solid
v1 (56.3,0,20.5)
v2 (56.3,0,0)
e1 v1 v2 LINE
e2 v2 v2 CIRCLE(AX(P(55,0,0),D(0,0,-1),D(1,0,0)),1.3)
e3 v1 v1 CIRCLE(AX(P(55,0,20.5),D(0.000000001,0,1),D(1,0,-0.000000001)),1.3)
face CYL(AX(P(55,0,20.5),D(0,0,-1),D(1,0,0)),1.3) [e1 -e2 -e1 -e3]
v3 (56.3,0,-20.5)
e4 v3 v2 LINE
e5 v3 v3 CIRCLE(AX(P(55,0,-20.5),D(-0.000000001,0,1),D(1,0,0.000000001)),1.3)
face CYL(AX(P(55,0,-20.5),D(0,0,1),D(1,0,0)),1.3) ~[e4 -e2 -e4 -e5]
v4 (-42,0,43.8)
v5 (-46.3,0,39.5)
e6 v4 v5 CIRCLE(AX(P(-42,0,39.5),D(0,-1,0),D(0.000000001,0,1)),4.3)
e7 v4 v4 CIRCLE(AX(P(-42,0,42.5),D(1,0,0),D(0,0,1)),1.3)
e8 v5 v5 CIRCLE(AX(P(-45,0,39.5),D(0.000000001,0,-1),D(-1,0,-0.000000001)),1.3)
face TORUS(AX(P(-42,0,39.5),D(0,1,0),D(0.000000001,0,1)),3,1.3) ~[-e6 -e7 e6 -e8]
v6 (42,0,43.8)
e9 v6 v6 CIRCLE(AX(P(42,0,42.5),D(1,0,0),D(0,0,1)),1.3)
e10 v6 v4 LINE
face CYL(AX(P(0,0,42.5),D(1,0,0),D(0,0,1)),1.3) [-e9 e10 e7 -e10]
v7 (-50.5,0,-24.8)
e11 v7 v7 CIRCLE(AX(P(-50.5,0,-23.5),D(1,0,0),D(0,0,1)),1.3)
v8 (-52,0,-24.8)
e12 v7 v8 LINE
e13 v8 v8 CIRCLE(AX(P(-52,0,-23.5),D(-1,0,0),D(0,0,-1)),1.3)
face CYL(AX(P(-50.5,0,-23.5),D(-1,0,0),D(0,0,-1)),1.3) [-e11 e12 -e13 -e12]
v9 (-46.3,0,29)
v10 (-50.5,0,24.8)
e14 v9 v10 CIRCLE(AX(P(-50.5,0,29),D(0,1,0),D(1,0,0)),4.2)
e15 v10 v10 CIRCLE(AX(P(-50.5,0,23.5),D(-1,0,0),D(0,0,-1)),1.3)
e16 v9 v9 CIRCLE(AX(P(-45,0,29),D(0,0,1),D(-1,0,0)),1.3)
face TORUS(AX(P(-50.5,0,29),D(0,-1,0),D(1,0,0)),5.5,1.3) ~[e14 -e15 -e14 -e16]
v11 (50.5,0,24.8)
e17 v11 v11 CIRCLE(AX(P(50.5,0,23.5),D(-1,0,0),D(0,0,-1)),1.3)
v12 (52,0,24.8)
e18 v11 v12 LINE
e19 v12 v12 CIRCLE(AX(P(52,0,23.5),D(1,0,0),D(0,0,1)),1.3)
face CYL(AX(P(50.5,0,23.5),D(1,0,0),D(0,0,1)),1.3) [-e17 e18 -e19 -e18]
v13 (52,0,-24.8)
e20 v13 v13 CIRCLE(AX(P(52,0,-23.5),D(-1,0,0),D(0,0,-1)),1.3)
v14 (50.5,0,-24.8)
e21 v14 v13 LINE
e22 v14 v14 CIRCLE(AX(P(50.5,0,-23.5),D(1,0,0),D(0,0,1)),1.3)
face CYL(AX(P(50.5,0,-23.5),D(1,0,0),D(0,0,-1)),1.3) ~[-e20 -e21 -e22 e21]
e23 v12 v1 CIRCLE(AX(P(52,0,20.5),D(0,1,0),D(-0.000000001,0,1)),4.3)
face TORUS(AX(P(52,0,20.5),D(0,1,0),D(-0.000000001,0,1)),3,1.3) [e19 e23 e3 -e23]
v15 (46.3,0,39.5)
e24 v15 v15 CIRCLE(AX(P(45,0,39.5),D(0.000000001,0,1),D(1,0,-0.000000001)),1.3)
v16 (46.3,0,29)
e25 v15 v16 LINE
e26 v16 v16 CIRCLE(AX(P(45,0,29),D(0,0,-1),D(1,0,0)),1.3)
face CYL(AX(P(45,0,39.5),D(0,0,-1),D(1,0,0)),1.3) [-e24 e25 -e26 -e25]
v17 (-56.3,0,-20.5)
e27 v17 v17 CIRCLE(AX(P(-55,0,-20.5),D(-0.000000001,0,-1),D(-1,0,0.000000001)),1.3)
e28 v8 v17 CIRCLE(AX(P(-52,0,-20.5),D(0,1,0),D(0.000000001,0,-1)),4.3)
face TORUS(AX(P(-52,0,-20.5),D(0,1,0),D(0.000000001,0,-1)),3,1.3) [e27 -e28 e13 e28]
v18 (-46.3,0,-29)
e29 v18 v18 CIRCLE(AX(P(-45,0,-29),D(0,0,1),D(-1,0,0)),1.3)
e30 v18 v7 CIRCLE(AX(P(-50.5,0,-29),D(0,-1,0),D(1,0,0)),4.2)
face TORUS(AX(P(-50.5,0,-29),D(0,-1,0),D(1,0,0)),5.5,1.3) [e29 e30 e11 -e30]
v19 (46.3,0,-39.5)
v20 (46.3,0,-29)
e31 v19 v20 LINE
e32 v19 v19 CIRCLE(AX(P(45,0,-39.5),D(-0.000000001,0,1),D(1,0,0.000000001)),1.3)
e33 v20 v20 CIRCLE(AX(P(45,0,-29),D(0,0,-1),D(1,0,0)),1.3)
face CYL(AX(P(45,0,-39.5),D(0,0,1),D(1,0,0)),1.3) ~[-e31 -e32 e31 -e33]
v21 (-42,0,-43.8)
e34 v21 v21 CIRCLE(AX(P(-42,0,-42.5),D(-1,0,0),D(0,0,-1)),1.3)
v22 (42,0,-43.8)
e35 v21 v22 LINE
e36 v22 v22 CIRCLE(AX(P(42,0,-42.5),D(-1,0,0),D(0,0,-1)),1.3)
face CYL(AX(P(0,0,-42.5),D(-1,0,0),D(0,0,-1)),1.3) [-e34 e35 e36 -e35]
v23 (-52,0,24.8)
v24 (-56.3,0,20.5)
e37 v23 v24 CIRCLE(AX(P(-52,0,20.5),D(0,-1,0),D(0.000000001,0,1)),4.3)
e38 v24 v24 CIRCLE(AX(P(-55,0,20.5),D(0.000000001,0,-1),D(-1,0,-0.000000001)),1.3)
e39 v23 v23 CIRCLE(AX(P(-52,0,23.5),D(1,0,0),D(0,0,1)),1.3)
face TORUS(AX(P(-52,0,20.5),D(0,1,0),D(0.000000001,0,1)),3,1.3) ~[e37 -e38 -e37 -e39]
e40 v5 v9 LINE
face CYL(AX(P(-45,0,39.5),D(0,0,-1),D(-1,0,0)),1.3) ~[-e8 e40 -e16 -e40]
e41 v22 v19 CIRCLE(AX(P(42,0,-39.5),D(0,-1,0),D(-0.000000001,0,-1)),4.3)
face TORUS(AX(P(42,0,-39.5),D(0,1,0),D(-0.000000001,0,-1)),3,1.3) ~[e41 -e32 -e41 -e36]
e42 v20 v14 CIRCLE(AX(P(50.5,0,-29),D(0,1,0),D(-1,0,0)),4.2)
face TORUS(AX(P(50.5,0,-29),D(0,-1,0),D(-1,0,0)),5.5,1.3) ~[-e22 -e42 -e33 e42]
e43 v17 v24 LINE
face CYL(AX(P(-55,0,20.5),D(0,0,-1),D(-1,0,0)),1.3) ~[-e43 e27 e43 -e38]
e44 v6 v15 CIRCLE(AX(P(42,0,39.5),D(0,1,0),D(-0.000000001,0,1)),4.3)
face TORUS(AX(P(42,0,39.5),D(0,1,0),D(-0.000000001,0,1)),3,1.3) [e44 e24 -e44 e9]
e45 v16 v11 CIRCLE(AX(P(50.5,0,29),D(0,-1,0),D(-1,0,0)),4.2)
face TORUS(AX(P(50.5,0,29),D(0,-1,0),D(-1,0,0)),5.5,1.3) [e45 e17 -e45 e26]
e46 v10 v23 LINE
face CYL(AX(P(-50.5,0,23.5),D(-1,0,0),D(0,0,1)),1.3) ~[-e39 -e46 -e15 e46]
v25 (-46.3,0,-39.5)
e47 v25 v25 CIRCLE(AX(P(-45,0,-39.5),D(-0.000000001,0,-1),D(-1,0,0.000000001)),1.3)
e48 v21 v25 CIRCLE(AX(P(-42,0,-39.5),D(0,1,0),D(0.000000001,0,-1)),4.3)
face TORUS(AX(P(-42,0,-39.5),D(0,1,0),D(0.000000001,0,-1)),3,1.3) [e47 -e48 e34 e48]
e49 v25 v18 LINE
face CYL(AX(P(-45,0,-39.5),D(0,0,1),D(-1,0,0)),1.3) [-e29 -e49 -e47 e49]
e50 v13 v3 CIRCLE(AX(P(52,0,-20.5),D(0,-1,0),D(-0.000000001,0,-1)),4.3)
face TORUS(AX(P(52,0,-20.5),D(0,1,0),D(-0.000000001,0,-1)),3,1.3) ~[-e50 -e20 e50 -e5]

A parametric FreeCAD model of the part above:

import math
import FreeCAD as App
import Part
import Sketcher

V = App.Vector
Q = App.Units.Quantity

doc = App.newDocument("Part")
body = doc.addObject("PartDesign::Body", "Body")

sketch1 = body.newObject("Sketcher::SketchObject", "Sketch")
sketch1.AttachmentSupport = (doc.getObject("XY_Plane"), [""])
sketch1.MapMode = "FlatFace"
sketch1.addGeometry(Part.Circle(V(-55, 0, 0), V(0, 0, 1), 1.3), False)
sketch1.addConstraint([
    Sketcher.Constraint("PointOnObject", 0, 3, -1),
    Sketcher.Constraint("Diameter", 0, Q("2.6 mm")),
    Sketcher.Constraint("DistanceX", 0, 3, -1, 1, Q("55 mm")),
])

sketch2 = body.newObject("Sketcher::SketchObject", "Sketch001")
sketch2.AttachmentSupport = (doc.getObject("XZ_Plane"), [""])
sketch2.MapMode = "FlatFace"
sketch2.addGeometry([
    Part.LineSegment(V(0, -42.5, 0), V(-42, -42.5, 0)),
    Part.ArcOfCircle(Part.Circle(V(-42, -39.5, 0), V(0, 0, 1), 3), math.radians(180), math.radians(270)),
    Part.LineSegment(V(-45, -39.5, 0), V(-45, -29, 0)),
    Part.ArcOfCircle(Part.Circle(V(-50.5, -29, 0), V(0, 0, 1), 5.5), math.radians(0), math.radians(90)),
    Part.LineSegment(V(-50.5, -23.5, 0), V(-52, -23.5, 0)),
    Part.ArcOfCircle(Part.Circle(V(-52, -20.5, 0), V(0, 0, 1), 3), math.radians(180), math.radians(270)),
    Part.LineSegment(V(-55, -20.5, 0), V(-55, 0, 0)),
], False)
sketch2.addConstraint([
    Sketcher.Constraint("Tangent", 0, 2, 1, 2),
    Sketcher.Constraint("Tangent", 1, 1, 2, 1),
    Sketcher.Constraint("Tangent", 2, 2, 3, 1),
    Sketcher.Constraint("Tangent", 3, 2, 4, 1),
    Sketcher.Constraint("Tangent", 4, 2, 5, 2),
    Sketcher.Constraint("Tangent", 5, 1, 6, 1),
    Sketcher.Constraint("Horizontal", 0),
    Sketcher.Constraint("Vertical", 2),
    Sketcher.Constraint("Horizontal", 4),
    Sketcher.Constraint("Vertical", 6),
    Sketcher.Constraint("Equal", 1, 5),
    Sketcher.Constraint("PointOnObject", 0, 1, -2),
    Sketcher.Constraint("PointOnObject", 6, 2, -1),
    Sketcher.Constraint("Radius", 1, Q("3 mm")),
    Sketcher.Constraint("Radius", 3, Q("5.5 mm")),
    Sketcher.Constraint("DistanceX", 0, 2, 0, 1, Q("42 mm")),
    Sketcher.Constraint("DistanceX", 4, 2, 4, 1, Q("1.5 mm")),
    Sketcher.Constraint("DistanceY", 2, 1, 2, 2, Q("10.5 mm")),
    Sketcher.Constraint("DistanceY", 6, 1, 6, 2, Q("20.5 mm")),
])
doc.recompute()

additivepipe = body.newObject("PartDesign::AdditivePipe", "AdditivePipe")
additivepipe.Profile = sketch1
additivepipe.Spine = (sketch2, ["Edge1", "Edge2", "Edge3", "Edge4", "Edge5", "Edge6", "Edge7"])
doc.recompute()

mirrored = body.newObject("PartDesign::Mirrored", "Mirrored")
mirrored.Originals = [additivepipe]
mirrored.MirrorPlane = (doc.getObject("YZ_Plane"), [""])
body.Tip = mirrored
doc.recompute()

mirrored2 = body.newObject("PartDesign::Mirrored", "Mirrored001")
mirrored2.Originals = [additivepipe]
mirrored2.MirrorPlane = (doc.getObject("XY_Plane"), [""])
body.Tip = mirrored2

sketch3 = body.newObject("Sketcher::SketchObject", "Sketch002")
sketch3.AttachmentSupport = (doc.getObject("XY_Plane"), [""])
sketch3.MapMode = "FlatFace"
sketch3.addGeometry(Part.Circle(V(55, 0, 0), V(0, 0, 1), 1.3), False)
sketch3.addConstraint([
    Sketcher.Constraint("PointOnObject", 0, 3, -1),
    Sketcher.Constraint("Diameter", 0, Q("2.6 mm")),
    Sketcher.Constraint("DistanceX", -1, 1, 0, 3, Q("55 mm")),
])

sketch4 = body.newObject("Sketcher::SketchObject", "Sketch003")
sketch4.AttachmentSupport = (doc.getObject("XZ_Plane"), [""])
sketch4.MapMode = "FlatFace"
sketch4.addGeometry([
    Part.LineSegment(V(0, 42.5, 0), V(42, 42.5, 0)),
    Part.ArcOfCircle(Part.Circle(V(42, 39.5, 0), V(0, 0, 1), 3), math.radians(0), math.radians(90)),
    Part.LineSegment(V(45, 39.5, 0), V(45, 29, 0)),
    Part.ArcOfCircle(Part.Circle(V(50.5, 29, 0), V(0, 0, 1), 5.5), math.radians(180), math.radians(270)),
    Part.LineSegment(V(50.5, 23.5, 0), V(52, 23.5, 0)),
    Part.ArcOfCircle(Part.Circle(V(52, 20.5, 0), V(0, 0, 1), 3), math.radians(0), math.radians(90)),
    Part.LineSegment(V(55, 20.5, 0), V(55, 0, 0)),
], False)
sketch4.addConstraint([
    Sketcher.Constraint("Tangent", 0, 2, 1, 2),
    Sketcher.Constraint("Tangent", 1, 1, 2, 1),
    Sketcher.Constraint("Tangent", 2, 2, 3, 1),
    Sketcher.Constraint("Tangent", 3, 2, 4, 1),
    Sketcher.Constraint("Tangent", 4, 2, 5, 2),
    Sketcher.Constraint("Tangent", 5, 1, 6, 1),
    Sketcher.Constraint("Horizontal", 0),
    Sketcher.Constraint("Vertical", 2),
    Sketcher.Constraint("Horizontal", 4),
    Sketcher.Constraint("Vertical", 6),
    Sketcher.Constraint("Equal", 1, 5),
    Sketcher.Constraint("PointOnObject", 0, 1, -2),
    Sketcher.Constraint("PointOnObject", 6, 2, -1),
    Sketcher.Constraint("Radius", 1, Q("3 mm")),
    Sketcher.Constraint("Radius", 3, Q("5.5 mm")),
    Sketcher.Constraint("DistanceX", 0, 1, 0, 2, Q("42 mm")),
    Sketcher.Constraint("DistanceX", 4, 1, 4, 2, Q("1.5 mm")),
    Sketcher.Constraint("DistanceY", 2, 2, 2, 1, Q("10.5 mm")),
    Sketcher.Constraint("DistanceY", 6, 2, 6, 1, Q("20.5 mm")),
])
doc.recompute()

additivepipe2 = body.newObject("PartDesign::AdditivePipe", "AdditivePipe001")
additivepipe2.Profile = sketch3
additivepipe2.Spine = (sketch4, ["Edge1", "Edge2", "Edge3", "Edge4", "Edge5", "Edge6", "Edge7"])

doc.recompute()
